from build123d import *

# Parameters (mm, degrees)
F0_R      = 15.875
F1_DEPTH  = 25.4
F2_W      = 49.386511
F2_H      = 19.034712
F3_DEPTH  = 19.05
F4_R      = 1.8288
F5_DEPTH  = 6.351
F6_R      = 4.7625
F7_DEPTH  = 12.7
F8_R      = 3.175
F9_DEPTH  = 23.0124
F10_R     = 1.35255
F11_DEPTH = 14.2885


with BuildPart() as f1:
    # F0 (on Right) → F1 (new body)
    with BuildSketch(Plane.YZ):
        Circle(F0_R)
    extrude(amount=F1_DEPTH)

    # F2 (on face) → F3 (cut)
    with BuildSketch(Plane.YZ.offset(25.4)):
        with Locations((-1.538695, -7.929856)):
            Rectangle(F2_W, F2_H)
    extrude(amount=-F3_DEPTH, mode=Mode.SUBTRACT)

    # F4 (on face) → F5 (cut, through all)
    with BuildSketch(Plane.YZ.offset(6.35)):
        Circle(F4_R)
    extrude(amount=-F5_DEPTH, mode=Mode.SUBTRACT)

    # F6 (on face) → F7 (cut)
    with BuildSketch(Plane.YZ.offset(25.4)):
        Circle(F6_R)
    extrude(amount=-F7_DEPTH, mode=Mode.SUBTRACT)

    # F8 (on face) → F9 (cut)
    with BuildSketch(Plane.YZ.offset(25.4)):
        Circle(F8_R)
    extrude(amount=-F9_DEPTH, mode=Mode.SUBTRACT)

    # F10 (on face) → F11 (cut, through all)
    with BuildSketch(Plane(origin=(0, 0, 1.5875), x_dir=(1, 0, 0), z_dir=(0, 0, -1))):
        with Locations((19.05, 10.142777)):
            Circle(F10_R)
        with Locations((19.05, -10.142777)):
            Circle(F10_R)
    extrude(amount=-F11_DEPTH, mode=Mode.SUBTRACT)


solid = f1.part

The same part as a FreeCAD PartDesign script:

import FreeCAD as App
import Part
import Sketcher
from FreeCAD import Vector
Q = App.Units.Quantity

doc = App.newDocument("Part")
body = doc.addObject("PartDesign::Body", "Body")

# Sketch on YZ plane
sketch1 = doc.addObject("Sketcher::SketchObject", "Sketch")
body.addObject(sketch1)
sketch1.AttachmentSupport = (doc.YZ_Plane, [""])
sketch1.MapMode = "FlatFace"
sketch1.addGeometry(Part.Circle(Vector(0, 0, 0), Vector(0, 0, 1), 16), False)
sketch1.addConstraint([
    Sketcher.Constraint("Coincident", 0, 3, -1, 1),
    Sketcher.Constraint("Diameter", 0, Q("1.25 in")),
])
pad1 = doc.addObject("PartDesign::Pad", "Pad")
body.addObject(pad1)
pad1.Profile = sketch1
pad1.Length = Q("1 in")

# Sketch on YZ plane
sketch2 = doc.addObject("Sketcher::SketchObject", "Sketch001")
body.addObject(sketch2)
sketch2.AttachmentSupport = (doc.YZ_Plane, [""])
sketch2.MapMode = "FlatFace"
sketch2.AttachmentOffset = App.Placement(Vector(0, 0, 1 * 25.4), App.Rotation())
sketch2.addGeometry([
    Part.LineSegment(Vector(-26, 2, 0), Vector(-26, -17, 0)),
    Part.LineSegment(Vector(-26, -17, 0), Vector(23, -17, 0)),
    Part.LineSegment(Vector(23, -17, 0), Vector(23, 2, 0)),
    Part.LineSegment(Vector(23, 2, 0), Vector(-26, 2, 0)),
], False)
sketch2.addConstraint([
    Sketcher.Constraint("Coincident", 0, 2, 1, 1),
    Sketcher.Constraint("Coincident", 1, 2, 2, 1),
    Sketcher.Constraint("Coincident", 2, 2, 3, 1),
    Sketcher.Constraint("Coincident", 3, 2, 0, 1),
    Sketcher.Constraint("Vertical", 0),
    Sketcher.Constraint("Horizontal", 1),
    Sketcher.Constraint("Vertical", 2),
    Sketcher.Constraint("Horizontal", 3),
    Sketcher.Constraint("DistanceY", -1, 1, 2, 2, Q("0.0625 in")),
    Sketcher.Constraint("DistanceX", 1, 1, 1, 2, Q("49.386511 mm")),
    Sketcher.Constraint("DistanceY", 0, 2, 0, 1, Q("19.034712 mm")),
    Sketcher.Constraint("DistanceX", 0, 2, -1, 1, Q("26.23195 mm")),
])
pocket1 = doc.addObject("PartDesign::Pocket", "Pocket")
body.addObject(pocket1)
pocket1.Profile = sketch2
pocket1.Length = Q("0.75 in")

# Sketch on YZ plane
sketch3 = doc.addObject("Sketcher::SketchObject", "Sketch002")
body.addObject(sketch3)
sketch3.AttachmentSupport = (doc.YZ_Plane, [""])
sketch3.MapMode = "FlatFace"
sketch3.AttachmentOffset = App.Placement(Vector(0, 0, 0.25 * 25.4), App.Rotation())
sketch3.addGeometry(Part.Circle(Vector(0, 0, 0), Vector(0, 0, 1), 1.8), False)
sketch3.addConstraint([
    Sketcher.Constraint("Coincident", 0, 3, -1, 1),
    Sketcher.Constraint("Diameter", 0, Q("0.144 in")),
])
pocket2 = doc.addObject("PartDesign::Pocket", "Pocket001")
body.addObject(pocket2)
pocket2.Profile = sketch3
pocket2.Type = "ThroughAll"

# Sketch on YZ plane
sketch4 = doc.addObject("Sketcher::SketchObject", "Sketch003")
body.addObject(sketch4)
sketch4.AttachmentSupport = (doc.YZ_Plane, [""])
sketch4.MapMode = "FlatFace"
sketch4.AttachmentOffset = App.Placement(Vector(0, 0, 1 * 25.4), App.Rotation())
sketch4.addGeometry(Part.Circle(Vector(0, 0, 0), Vector(0, 0, 1), 4.8), False)
sketch4.addConstraint([
    Sketcher.Constraint("Coincident", 0, 3, -1, 1),
    Sketcher.Constraint("Diameter", 0, Q("0.375 in")),
])
pocket3 = doc.addObject("PartDesign::Pocket", "Pocket002")
body.addObject(pocket3)
pocket3.Profile = sketch4
pocket3.Length = Q("0.5 in")

# Sketch on YZ plane
sketch5 = doc.addObject("Sketcher::SketchObject", "Sketch004")
body.addObject(sketch5)
sketch5.AttachmentSupport = (doc.YZ_Plane, [""])
sketch5.MapMode = "FlatFace"
sketch5.AttachmentOffset = App.Placement(Vector(0, 0, 1 * 25.4), App.Rotation())
sketch5.addGeometry(Part.Circle(Vector(0, 0, 0), Vector(0, 0, 1), 3.2), False)
sketch5.addConstraint([
    Sketcher.Constraint("Coincident", 0, 3, -1, 1),
    Sketcher.Constraint("Diameter", 0, Q("0.25 in")),
])
pocket4 = doc.addObject("PartDesign::Pocket", "Pocket003")
body.addObject(pocket4)
pocket4.Profile = sketch5
pocket4.Length = Q("0.906 in")

# Sketch on XY plane
sketch6 = doc.addObject("Sketcher::SketchObject", "Sketch005")
body.addObject(sketch6)
sketch6.AttachmentSupport = (doc.XY_Plane, [""])
sketch6.MapMode = "FlatFace"
sketch6.AttachmentOffset = App.Placement(Vector(0, 0, 0.0625 * 25.4), App.Rotation())
sketch6.addGeometry([
    Part.Circle(Vector(19.1, -10.1, 0), Vector(0, 0, 1), 1.4),
    Part.Circle(Vector(19.1, 10.1, 0), Vector(0, 0, 1), 1.4),
], False)
sketch6.addConstraint([
    Sketcher.Constraint("Equal", 0, 1),
    Sketcher.Constraint("Symmetric", 0, 3, 1, 3, -1),
    Sketcher.Constraint("Diameter", 0, Q("0.1065 in")),
    Sketcher.Constraint("DistanceX", -1, 1, 0, 3, Q("0.75 in")),
    Sketcher.Constraint("DistanceY", 0, 3, -1, 1, Q("10.142777 mm")),
])
pocket5 = doc.addObject("PartDesign::Pocket", "Pocket004")
body.addObject(pocket5)
pocket5.Profile = sketch6
pocket5.Type = "ThroughAll"
pocket5.Reversed = True

doc.recompute()
